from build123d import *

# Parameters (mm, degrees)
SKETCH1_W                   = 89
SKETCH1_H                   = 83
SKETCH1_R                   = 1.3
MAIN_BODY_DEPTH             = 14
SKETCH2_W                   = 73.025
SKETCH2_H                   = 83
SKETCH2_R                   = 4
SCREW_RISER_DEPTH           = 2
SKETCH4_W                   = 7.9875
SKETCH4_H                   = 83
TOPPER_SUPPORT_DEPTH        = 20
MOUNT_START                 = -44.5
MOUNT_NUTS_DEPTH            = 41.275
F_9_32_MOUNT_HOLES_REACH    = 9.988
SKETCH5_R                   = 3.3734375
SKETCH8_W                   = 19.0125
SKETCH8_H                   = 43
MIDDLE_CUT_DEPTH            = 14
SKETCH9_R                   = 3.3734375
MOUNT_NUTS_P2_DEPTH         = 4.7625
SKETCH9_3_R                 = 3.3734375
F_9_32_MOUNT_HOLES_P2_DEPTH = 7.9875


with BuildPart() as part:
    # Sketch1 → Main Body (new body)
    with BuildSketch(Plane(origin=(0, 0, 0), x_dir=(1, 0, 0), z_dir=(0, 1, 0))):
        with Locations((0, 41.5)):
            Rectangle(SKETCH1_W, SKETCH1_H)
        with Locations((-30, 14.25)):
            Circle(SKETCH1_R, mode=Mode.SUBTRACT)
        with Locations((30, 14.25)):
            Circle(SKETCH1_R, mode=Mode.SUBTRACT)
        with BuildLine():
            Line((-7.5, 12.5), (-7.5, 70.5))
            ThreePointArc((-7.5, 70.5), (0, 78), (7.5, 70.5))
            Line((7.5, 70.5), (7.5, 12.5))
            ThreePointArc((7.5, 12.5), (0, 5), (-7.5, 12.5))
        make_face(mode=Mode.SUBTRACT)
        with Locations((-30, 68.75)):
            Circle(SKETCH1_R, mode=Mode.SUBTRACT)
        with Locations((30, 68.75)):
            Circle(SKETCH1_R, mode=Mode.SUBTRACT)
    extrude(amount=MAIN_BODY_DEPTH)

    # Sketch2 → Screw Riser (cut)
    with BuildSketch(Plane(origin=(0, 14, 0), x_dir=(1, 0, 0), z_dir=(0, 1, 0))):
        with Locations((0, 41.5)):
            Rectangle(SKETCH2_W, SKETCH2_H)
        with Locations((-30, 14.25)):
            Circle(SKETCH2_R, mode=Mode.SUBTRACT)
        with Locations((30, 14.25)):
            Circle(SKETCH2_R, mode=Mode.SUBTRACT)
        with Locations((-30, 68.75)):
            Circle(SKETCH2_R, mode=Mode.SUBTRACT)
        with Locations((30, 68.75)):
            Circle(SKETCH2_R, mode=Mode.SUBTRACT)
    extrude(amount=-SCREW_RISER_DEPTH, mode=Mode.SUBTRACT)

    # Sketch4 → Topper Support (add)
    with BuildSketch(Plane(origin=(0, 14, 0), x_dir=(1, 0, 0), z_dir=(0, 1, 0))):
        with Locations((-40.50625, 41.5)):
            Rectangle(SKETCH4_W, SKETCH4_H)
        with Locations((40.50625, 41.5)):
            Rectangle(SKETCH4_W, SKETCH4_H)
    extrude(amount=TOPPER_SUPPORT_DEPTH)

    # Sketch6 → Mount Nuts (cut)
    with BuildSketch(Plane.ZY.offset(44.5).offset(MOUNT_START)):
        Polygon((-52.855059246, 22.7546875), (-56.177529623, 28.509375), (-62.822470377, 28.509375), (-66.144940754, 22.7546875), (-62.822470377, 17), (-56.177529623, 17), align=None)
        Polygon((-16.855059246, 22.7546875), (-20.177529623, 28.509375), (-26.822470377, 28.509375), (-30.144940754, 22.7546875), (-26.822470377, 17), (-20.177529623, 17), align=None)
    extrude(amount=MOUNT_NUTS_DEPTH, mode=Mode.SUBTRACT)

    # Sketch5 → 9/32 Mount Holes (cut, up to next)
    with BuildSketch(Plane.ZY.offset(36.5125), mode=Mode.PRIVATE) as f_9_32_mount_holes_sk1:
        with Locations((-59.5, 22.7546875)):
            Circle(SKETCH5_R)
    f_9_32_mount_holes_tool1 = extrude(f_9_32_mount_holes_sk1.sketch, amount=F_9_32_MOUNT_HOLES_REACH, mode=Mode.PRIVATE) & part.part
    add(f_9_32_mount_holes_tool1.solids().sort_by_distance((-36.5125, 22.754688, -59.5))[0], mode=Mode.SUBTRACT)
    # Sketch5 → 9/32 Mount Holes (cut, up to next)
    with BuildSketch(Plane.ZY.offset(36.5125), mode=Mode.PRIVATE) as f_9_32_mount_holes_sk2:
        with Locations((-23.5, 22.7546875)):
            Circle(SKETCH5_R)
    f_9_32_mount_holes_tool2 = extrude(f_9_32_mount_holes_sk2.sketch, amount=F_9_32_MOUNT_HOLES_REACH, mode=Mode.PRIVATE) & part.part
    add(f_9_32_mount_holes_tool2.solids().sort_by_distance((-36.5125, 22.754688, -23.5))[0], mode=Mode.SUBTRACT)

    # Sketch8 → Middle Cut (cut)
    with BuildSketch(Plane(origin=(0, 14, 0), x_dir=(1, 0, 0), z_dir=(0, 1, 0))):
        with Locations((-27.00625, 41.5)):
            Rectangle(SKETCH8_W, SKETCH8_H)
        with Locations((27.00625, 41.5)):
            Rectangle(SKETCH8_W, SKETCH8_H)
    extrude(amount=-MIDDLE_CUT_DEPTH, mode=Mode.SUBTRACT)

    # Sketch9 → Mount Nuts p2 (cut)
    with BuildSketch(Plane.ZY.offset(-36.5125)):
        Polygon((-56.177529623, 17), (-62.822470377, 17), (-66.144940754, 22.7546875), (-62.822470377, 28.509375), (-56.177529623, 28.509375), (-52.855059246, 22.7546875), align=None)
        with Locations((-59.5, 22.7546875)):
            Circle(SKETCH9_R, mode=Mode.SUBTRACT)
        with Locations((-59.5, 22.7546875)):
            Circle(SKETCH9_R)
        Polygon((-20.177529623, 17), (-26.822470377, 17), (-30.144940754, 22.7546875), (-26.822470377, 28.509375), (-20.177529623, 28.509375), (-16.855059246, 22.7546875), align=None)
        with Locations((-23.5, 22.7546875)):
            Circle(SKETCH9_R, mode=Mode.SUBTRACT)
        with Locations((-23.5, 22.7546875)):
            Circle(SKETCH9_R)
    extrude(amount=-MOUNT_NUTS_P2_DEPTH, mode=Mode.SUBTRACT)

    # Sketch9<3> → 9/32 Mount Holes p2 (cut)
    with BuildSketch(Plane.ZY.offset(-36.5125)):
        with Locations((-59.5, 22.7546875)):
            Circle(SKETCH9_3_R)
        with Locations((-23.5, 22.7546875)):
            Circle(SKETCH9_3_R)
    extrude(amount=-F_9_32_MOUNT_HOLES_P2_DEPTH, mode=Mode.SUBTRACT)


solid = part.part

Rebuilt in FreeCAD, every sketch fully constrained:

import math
import FreeCAD as App
import Part
import Sketcher
from FreeCAD import Vector
Q = App.Units.Quantity


def add_polygon(sketch, points):
    """Adds a closed chain of lines whose ends are joined by coincident constraints."""
    first, n = sketch.GeometryCount, len(points)
    for a, b in zip(points, points[1:] + points[:1]):
        sketch.addGeometry(Part.LineSegment(App.Vector(*a, 0), App.Vector(*b, 0)), False)
    for i in range(n):
        sketch.addConstraint(Sketcher.Constraint("Coincident", first + i, 2, first + (i + 1) % n, 1))

doc = App.newDocument("Part")
body = doc.addObject("PartDesign::Body", "Body")

# Sketch on XZ plane
sketch1 = body.newObject("Sketcher::SketchObject", "Sketch")
sketch1.AttachmentSupport = (doc.getObject("XZ_Plane"), [""])
sketch1.MapMode = "FlatFace"
add_polygon(sketch1, [(-44.5, -83), (-44.5, 0), (44.5, 0), (44.5, -83)])  # lines 0-3
sketch1.addGeometry(Part.Circle(Vector(-30, -14.25, 0), Vector(0, 0, 1), 1.3), False)  # 4
sketch1.addGeometry(Part.Circle(Vector(30, -14.25, 0), Vector(0, 0, 1), 1.3), False)  # 5
sketch1.addGeometry(Part.Circle(Vector(-30, -68.75, 0), Vector(0, 0, 1), 1.3), False)  # 6
sketch1.addGeometry(Part.ArcOfCircle(Part.Circle(Vector(0, -12.5, 0), Vector(0, 0, 1), 7.5), math.radians(0), math.radians(180)), False)  # 7
sketch1.addGeometry(Part.LineSegment(Vector(-7.5, -12.5, 0), Vector(-7.5, -70.5, 0)), False)  # 8
sketch1.addGeometry(Part.ArcOfCircle(Part.Circle(Vector(0, -70.5, 0), Vector(0, 0, 1), 7.5), math.radians(180), math.radians(360)), False)  # 9
sketch1.addGeometry(Part.LineSegment(Vector(7.5, -70.5, 0), Vector(7.5, -12.5, 0)), False)  # 10
sketch1.addGeometry(Part.Circle(Vector(30, -68.75, 0), Vector(0, 0, 1), 1.3), False)  # 11
sketch1.addConstraint([
    Sketcher.Constraint("Tangent", 7, 2, 8, 1),
    Sketcher.Constraint("Tangent", 8, 2, 9, 1),
    Sketcher.Constraint("Tangent", 9, 2, 10, 1),
    Sketcher.Constraint("Tangent", 10, 2, 7, 1),
    Sketcher.Constraint("Vertical", 0),
    Sketcher.Constraint("Horizontal", 1),
    Sketcher.Constraint("Vertical", 2),
    Sketcher.Constraint("Horizontal", 3),
    Sketcher.Constraint("Vertical", 8),
    Sketcher.Constraint("Vertical", 10),
    Sketcher.Constraint("Equal", 4, 5),
    Sketcher.Constraint("Equal", 5, 6),
    Sketcher.Constraint("Equal", 6, 11),
    Sketcher.Constraint("Symmetric", 0, 2, 1, 2, -1, 1),
    Sketcher.Constraint("Symmetric", 4, 3, 5, 3, -2),
    Sketcher.Constraint("Symmetric", 6, 3, 11, 3, -2),
    Sketcher.Constraint("PointOnObject", 7, 3, -2),
    Sketcher.Constraint("Vertical", 4, 3, 6, 3),
    Sketcher.Constraint("Diameter", 4, Q("2.6 mm")),
    Sketcher.Constraint("Radius", 7, Q("7.5 mm")),
    Sketcher.Constraint("DistanceX", 1, 1, 1, 2, Q("89 mm")),
    Sketcher.Constraint("DistanceY", 0, 1, 0, 2, Q("83 mm")),
    Sketcher.Constraint("DistanceY", 8, 2, 8, 1, Q("58 mm")),
    Sketcher.Constraint("DistanceX", 4, 3, -1, 1, Q("30 mm")),
    Sketcher.Constraint("DistanceY", 7, 3, -1, 1, Q("12.5 mm")),
    Sketcher.Constraint("DistanceY", 6, 3, 4, 3, Q("54.5 mm")),
    Sketcher.Constraint("DistanceY", 4, 3, -1, 1, Q("14.25 mm")),
])
pad1 = body.newObject("PartDesign::Pad", "Pad")
pad1.Profile = sketch1
pad1.Length = 14
pad1.Reversed = True

# Sketch on XZ plane
sketch2 = body.newObject("Sketcher::SketchObject", "Sketch001")
sketch2.AttachmentSupport = (doc.getObject("XZ_Plane"), [""])
sketch2.MapMode = "FlatFace"
sketch2.AttachmentOffset = App.Placement(Vector(0, 0, -14), App.Rotation())
add_polygon(sketch2, [(-36.5125, -83), (-36.5125, 0), (36.5125, 0), (36.5125, -83)])  # lines 0-3
sketch2.addGeometry(Part.Circle(Vector(-30, -14.25, 0), Vector(0, 0, 1), 4), False)  # 4
sketch2.addGeometry(Part.Circle(Vector(30, -14.25, 0), Vector(0, 0, 1), 4), False)  # 5
sketch2.addGeometry(Part.Circle(Vector(-30, -68.75, 0), Vector(0, 0, 1), 4), False)  # 6
sketch2.addGeometry(Part.Circle(Vector(30, -68.75, 0), Vector(0, 0, 1), 4), False)  # 7
sketch2.addConstraint([
    Sketcher.Constraint("Vertical", 0),
    Sketcher.Constraint("Horizontal", 1),
    Sketcher.Constraint("Vertical", 2),
    Sketcher.Constraint("Horizontal", 3),
    Sketcher.Constraint("Equal", 4, 5),
    Sketcher.Constraint("Equal", 5, 6),
    Sketcher.Constraint("Equal", 6, 7),
    Sketcher.Constraint("Symmetric", 0, 2, 1, 2, -1, 1),
    Sketcher.Constraint("Symmetric", 4, 3, 5, 3, -2),
    Sketcher.Constraint("Symmetric", 6, 3, 7, 3, -2),
    Sketcher.Constraint("Vertical", 4, 3, 6, 3),
    Sketcher.Constraint("Diameter", 4, Q("8 mm")),
    Sketcher.Constraint("DistanceY", 0, 1, 0, 2, Q("83 mm")),
    Sketcher.Constraint("DistanceX", 4, 3, -1, 1, Q("30 mm")),
    Sketcher.Constraint("DistanceY", 6, 3, 4, 3, Q("54.5 mm")),
    Sketcher.Constraint("DistanceX", 1, 1, 1, 2, Q("73.025 mm")),
    Sketcher.Constraint("DistanceY", 4, 3, -1, 1, Q("14.25 mm")),
])
pocket1 = body.newObject("PartDesign::Pocket", "Pocket")
pocket1.Profile = sketch2
pocket1.Length = 2
pocket1.Reversed = True

# Sketch on XZ plane
sketch3 = body.newObject("Sketcher::SketchObject", "Sketch002")
sketch3.AttachmentSupport = (doc.getObject("XZ_Plane"), [""])
sketch3.MapMode = "FlatFace"
sketch3.AttachmentOffset = App.Placement(Vector(0, 0, -14), App.Rotation())
add_polygon(sketch3, [(-44.5, -83), (-44.5, 0), (-36.5125, 0), (-36.5125, -83)])  # lines 0-3
add_polygon(sketch3, [(36.5125, -83), (36.5125, 0), (44.5, 0), (44.5, -83)])  # lines 4-7
sketch3.addConstraint([
    Sketcher.Constraint("Vertical", 0),
    Sketcher.Constraint("Horizontal", 1),
    Sketcher.Constraint("Vertical", 2),
    Sketcher.Constraint("Horizontal", 3),
    Sketcher.Constraint("Vertical", 4),
    Sketcher.Constraint("Horizontal", 5),
    Sketcher.Constraint("Vertical", 6),
    Sketcher.Constraint("Horizontal", 7),
    Sketcher.Constraint("Symmetric", 1, 2, 4, 2, -1, 1),
    Sketcher.Constraint("Symmetric", 0, 2, 5, 2, -2),
    Sketcher.Constraint("Horizontal", 3, 2, 6, 2),
    Sketcher.Constraint("DistanceY", 0, 1, 0, 2, Q("83 mm")),
    Sketcher.Constraint("DistanceX", 0, 2, 5, 2, Q("89 mm")),
    Sketcher.Constraint("DistanceX", 1, 1, 1, 2, Q("7.9875 mm")),
])
pad2 = body.newObject("PartDesign::Pad", "Pad001")
pad2.Profile = sketch3
pad2.Length = 20
pad2.Reversed = True

# Sketch on YZ plane
sketch4 = body.newObject("Sketcher::SketchObject", "Sketch003")
sketch4.AttachmentSupport = (doc.getObject("YZ_Plane"), [""])
sketch4.MapMode = "FlatFace"
add_polygon(sketch4, [(22.754687, -52.855059), (28.509375, -56.17753), (28.509375, -62.82247), (22.754687, -66.144941), (17, -62.82247), (17, -56.17753)])  # lines 0-5
add_polygon(sketch4, [(22.754687, -16.855059), (28.509375, -20.17753), (28.509375, -26.82247), (22.754687, -30.144941), (17, -26.82247), (17, -20.17753)])  # lines 6-11
sketch4.addConstraint([
    Sketcher.Constraint("Vertical", 1),
    Sketcher.Constraint("Vertical", 4),
    Sketcher.Constraint("Vertical", 7),
    Sketcher.Constraint("Vertical", 10),
    Sketcher.Constraint("Parallel", 0, 3),
    Sketcher.Constraint("Parallel", 2, 5),
    Sketcher.Constraint("Parallel", 3, 6),
    Sketcher.Constraint("Parallel", 5, 8),
    Sketcher.Constraint("Parallel", 6, 9),
    Sketcher.Constraint("Parallel", 8, 11),
    Sketcher.Constraint("Horizontal", 1, 2, 3, 2),
    Sketcher.Constraint("Horizontal", 0, 2, 4, 2),
    Sketcher.Constraint("Horizontal", 7, 2, 9, 2),
    Sketcher.Constraint("Horizontal", 6, 2, 10, 2),
    Sketcher.Constraint("Vertical", 2, 2, 5, 2),
    Sketcher.Constraint("Vertical", 1, 2, 6, 2),
    Sketcher.Constraint("Vertical", 5, 2, 8, 2),
    Sketcher.Constraint("Equal", 4, 7),
    Sketcher.Constraint("Angle", 0, Q("-30 deg")),
    Sketcher.Constraint("DistanceX", -1, 1, 3, 2, Q("17 mm")),
    Sketcher.Constraint("DistanceY", 0, 2, 6, 2, Q("36 mm")),
    Sketcher.Constraint("DistanceY", 1, 2, 1, 1, Q("6.644941 mm")),
    Sketcher.Constraint("Distance", 0, Q("6.644941 mm")),
    Sketcher.Constraint("DistanceY", 0, 2, -1, 1, Q("56.17753 mm")),
])
pocket2 = body.newObject("PartDesign::Pocket", "Pocket001")
pocket2.Profile = sketch4
pocket2.Length = 41.275

# Sketch on YZ plane
sketch5 = body.newObject("Sketcher::SketchObject", "Sketch004")
sketch5.AttachmentSupport = (doc.getObject("YZ_Plane"), [""])
sketch5.MapMode = "FlatFace"
sketch5.AttachmentOffset = App.Placement(Vector(0, 0, -36.5125), App.Rotation())
sketch5.addGeometry(Part.Circle(Vector(22.754687, -59.5, 0), Vector(0, 0, 1), 3.373438), False)
sketch5.addConstraint([
    Sketcher.Constraint("DistanceY", 0, 3, -1, 1, Q("59.5 mm")),
    Sketcher.Constraint("Diameter", 0, Q("6.746875 mm")),
    Sketcher.Constraint("DistanceX", -1, 1, 0, 3, Q("22.754687 mm")),
])
pocket3 = body.newObject("PartDesign::Pocket", "Pocket002")
pocket3.Profile = sketch5
pocket3.Length = 7.9875

# Sketch on YZ plane
sketch6 = body.newObject("Sketcher::SketchObject", "Sketch005")
sketch6.AttachmentSupport = (doc.getObject("YZ_Plane"), [""])
sketch6.MapMode = "FlatFace"
sketch6.AttachmentOffset = App.Placement(Vector(0, 0, -36.5125), App.Rotation())
sketch6.addGeometry(Part.Circle(Vector(22.754687, -23.5, 0), Vector(0, 0, 1), 3.373438), False)
sketch6.addConstraint([
    Sketcher.Constraint("DistanceY", 0, 3, -1, 1, Q("23.5 mm")),
    Sketcher.Constraint("Diameter", 0, Q("6.746875 mm")),
    Sketcher.Constraint("DistanceX", -1, 1, 0, 3, Q("22.754687 mm")),
])
pocket4 = body.newObject("PartDesign::Pocket", "Pocket003")
pocket4.Profile = sketch6
pocket4.Length = 7.9875

# Sketch on XZ plane
sketch7 = body.newObject("Sketcher::SketchObject", "Sketch006")
sketch7.AttachmentSupport = (doc.getObject("XZ_Plane"), [""])
sketch7.MapMode = "FlatFace"
sketch7.AttachmentOffset = App.Placement(Vector(0, 0, -14), App.Rotation())
add_polygon(sketch7, [(-36.5125, -63), (-36.5125, -20), (-17.5, -20), (-17.5, -63)])  # lines 0-3
add_polygon(sketch7, [(17.5, -63), (17.5, -20), (36.5125, -20), (36.5125, -63)])  # lines 4-7
sketch7.addConstraint([
    Sketcher.Constraint("Vertical", 0),
    Sketcher.Constraint("Horizontal", 1),
    Sketcher.Constraint("Vertical", 2),
    Sketcher.Constraint("Horizontal", 3),
    Sketcher.Constraint("Vertical", 4),
    Sketcher.Constraint("Horizontal", 5),
    Sketcher.Constraint("Vertical", 6),
    Sketcher.Constraint("Horizontal", 7),
    Sketcher.Constraint("Symmetric", 1, 2, 4, 2, -2),
    Sketcher.Constraint("Symmetric", 3, 2, 6, 2, -2),
    Sketcher.Constraint("DistanceY", 0, 1, 0, 2, Q("43 mm")),
    Sketcher.Constraint("DistanceY", 0, 2, -1, 1, Q("20 mm")),
    Sketcher.Constraint("DistanceX", 1, 2, 4, 2, Q("35 mm")),
    Sketcher.Constraint("DistanceX", 1, 1, 1, 2, Q("19.0125 mm")),
])
pocket5 = body.newObject("PartDesign::Pocket", "Pocket004")
pocket5.Profile = sketch7
pocket5.Length = 14
pocket5.Reversed = True

# Sketch on YZ plane
sketch8 = body.newObject("Sketcher::SketchObject", "Sketch007")
sketch8.AttachmentSupport = (doc.getObject("YZ_Plane"), [""])
sketch8.MapMode = "FlatFace"
sketch8.AttachmentOffset = App.Placement(Vector(0, 0, 36.5125), App.Rotation())
add_polygon(sketch8, [(17, -62.82247), (17, -56.17753), (22.754687, -52.855059), (28.509375, -56.17753), (28.509375, -62.82247), (22.754687, -66.144941)])  # lines 0-5
add_polygon(sketch8, [(17, -26.82247), (17, -20.17753), (22.754687, -16.855059), (28.509375, -20.17753), (28.509375, -26.82247), (22.754687, -30.144941)])  # lines 6-11
sketch8.addConstraint([
    Sketcher.Constraint("Vertical", 0),
    Sketcher.Constraint("Vertical", 3),
    Sketcher.Constraint("Vertical", 6),
    Sketcher.Constraint("Vertical", 9),
    Sketcher.Constraint("Parallel", 1, 4),
    Sketcher.Constraint("Parallel", 2, 5),
    Sketcher.Constraint("Parallel", 4, 7),
    Sketcher.Constraint("Parallel", 5, 8),
    Sketcher.Constraint("Parallel", 7, 10),
    Sketcher.Constraint("Parallel", 8, 11),
    Sketcher.Constraint("Horizontal", 0, 2, 2, 2),
    Sketcher.Constraint("Horizontal", 3, 2, 5, 2),
    Sketcher.Constraint("Horizontal", 6, 2, 8, 2),
    Sketcher.Constraint("Horizontal", 9, 2, 11, 2),
    Sketcher.Constraint("Vertical", 1, 2, 4, 2),
    Sketcher.Constraint("Vertical", 5, 2, 6, 2),
    Sketcher.Constraint("Vertical", 4, 2, 7, 2),
    Sketcher.Constraint("Equal", 3, 6),
    Sketcher.Constraint("Angle", 1, Q("30 deg")),
    Sketcher.Constraint("DistanceX", -1, 1, 0, 2, Q("17 mm")),
    Sketcher.Constraint("DistanceY", 0, 2, 6, 2, Q("36 mm")),
    Sketcher.Constraint("DistanceY", 0, 1, 0, 2, Q("6.644941 mm")),
    Sketcher.Constraint("Distance", 1, Q("6.644941 mm")),
    Sketcher.Constraint("DistanceY", 0, 2, -1, 1, Q("56.17753 mm")),
])
pocket6 = body.newObject("PartDesign::Pocket", "Pocket005")
pocket6.Profile = sketch8
pocket6.Length = 4.7625
pocket6.Reversed = True

# Sketch on YZ plane
sketch9 = body.newObject("Sketcher::SketchObject", "Sketch008")
sketch9.AttachmentSupport = (doc.getObject("YZ_Plane"), [""])
sketch9.MapMode = "FlatFace"
sketch9.AttachmentOffset = App.Placement(Vector(0, 0, 36.5125), App.Rotation())
sketch9.addGeometry([
    Part.Circle(Vector(22.754687, -59.5, 0), Vector(0, 0, 1), 3.373438),
    Part.Circle(Vector(22.754687, -23.5, 0), Vector(0, 0, 1), 3.373438),
], False)
sketch9.addConstraint([
    Sketcher.Constraint("Equal", 0, 1),
    Sketcher.Constraint("Vertical", 0, 3, 1, 3),
    Sketcher.Constraint("DistanceY", 0, 3, 1, 3, Q("36 mm")),
    Sketcher.Constraint("DistanceY", 0, 3, -1, 1, Q("59.5 mm")),
    Sketcher.Constraint("Diameter", 0, Q("6.746875 mm")),
    Sketcher.Constraint("DistanceX", -1, 1, 0, 3, Q("22.754687 mm")),
])
pocket7 = body.newObject("PartDesign::Pocket", "Pocket006")
pocket7.Profile = sketch9
pocket7.Length = 7.9875
pocket7.Reversed = True

doc.recompute()
